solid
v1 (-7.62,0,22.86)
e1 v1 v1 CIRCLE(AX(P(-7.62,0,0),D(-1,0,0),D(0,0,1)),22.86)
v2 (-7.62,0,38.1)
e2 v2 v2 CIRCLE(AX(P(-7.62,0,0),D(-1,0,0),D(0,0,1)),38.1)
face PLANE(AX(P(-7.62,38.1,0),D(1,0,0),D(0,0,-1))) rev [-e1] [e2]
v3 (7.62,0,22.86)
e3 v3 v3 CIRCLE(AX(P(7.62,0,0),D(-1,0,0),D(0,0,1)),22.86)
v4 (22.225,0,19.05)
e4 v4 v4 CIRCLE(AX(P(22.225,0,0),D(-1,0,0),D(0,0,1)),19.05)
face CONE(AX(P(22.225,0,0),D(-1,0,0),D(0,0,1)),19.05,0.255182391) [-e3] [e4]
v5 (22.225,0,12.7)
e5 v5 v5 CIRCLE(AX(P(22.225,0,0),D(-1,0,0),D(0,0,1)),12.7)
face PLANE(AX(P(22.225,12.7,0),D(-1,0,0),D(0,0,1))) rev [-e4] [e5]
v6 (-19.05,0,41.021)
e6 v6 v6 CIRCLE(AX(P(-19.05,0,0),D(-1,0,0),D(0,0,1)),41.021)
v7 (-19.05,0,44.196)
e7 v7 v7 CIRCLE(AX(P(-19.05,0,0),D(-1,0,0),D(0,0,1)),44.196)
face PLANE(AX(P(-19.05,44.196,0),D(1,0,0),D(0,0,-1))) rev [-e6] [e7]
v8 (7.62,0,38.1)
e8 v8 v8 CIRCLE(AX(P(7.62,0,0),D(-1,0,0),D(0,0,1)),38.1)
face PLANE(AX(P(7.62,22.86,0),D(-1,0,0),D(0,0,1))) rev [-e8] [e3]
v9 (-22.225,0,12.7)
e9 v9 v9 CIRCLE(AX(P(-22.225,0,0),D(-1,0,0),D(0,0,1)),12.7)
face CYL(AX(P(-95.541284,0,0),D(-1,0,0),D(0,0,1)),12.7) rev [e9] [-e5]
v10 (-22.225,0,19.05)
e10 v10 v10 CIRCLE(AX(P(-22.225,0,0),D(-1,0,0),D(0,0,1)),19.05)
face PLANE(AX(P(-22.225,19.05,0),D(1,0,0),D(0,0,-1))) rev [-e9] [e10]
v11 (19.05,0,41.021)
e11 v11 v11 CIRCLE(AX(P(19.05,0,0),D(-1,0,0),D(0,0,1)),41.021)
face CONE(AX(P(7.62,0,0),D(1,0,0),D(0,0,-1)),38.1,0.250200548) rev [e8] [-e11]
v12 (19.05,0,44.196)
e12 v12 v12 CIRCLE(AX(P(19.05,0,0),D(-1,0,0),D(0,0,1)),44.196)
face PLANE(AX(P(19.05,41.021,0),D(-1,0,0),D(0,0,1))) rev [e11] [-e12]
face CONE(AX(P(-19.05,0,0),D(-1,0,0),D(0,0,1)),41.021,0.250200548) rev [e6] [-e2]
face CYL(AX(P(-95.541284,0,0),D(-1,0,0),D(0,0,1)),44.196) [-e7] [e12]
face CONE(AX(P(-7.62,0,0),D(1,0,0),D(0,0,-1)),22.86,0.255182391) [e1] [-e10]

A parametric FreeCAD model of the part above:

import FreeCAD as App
import Part
import Sketcher
Q = App.Units.Quantity

doc = App.newDocument("Part")
body = doc.addObject("PartDesign::Body", "Body")

sketch1 = body.newObject("Sketcher::SketchObject", "Sketch")
sketch1.AttachmentSupport = (doc.getObject("XY_Plane"), [""])
sketch1.MapMode = "FlatFace"
sketch1.addGeometry(Part.LineSegment(App.Vector(-22.2, 12.7, 0), App.Vector(22.2, 12.7, 0)), False)
sketch1.addGeometry(Part.LineSegment(App.Vector(22.2, 12.7, 0), App.Vector(22.2, 19.1, 0)), False)
sketch1.addGeometry(Part.LineSegment(App.Vector(22.2, 19.1, 0), App.Vector(7.6, 22.9, 0)), False)
sketch1.addGeometry(Part.LineSegment(App.Vector(7.6, 22.9, 0), App.Vector(7.6, 38.1, 0)), False)
sketch1.addGeometry(Part.LineSegment(App.Vector(7.6, 38.1, 0), App.Vector(19.1, 41, 0)), False)
sketch1.addGeometry(Part.LineSegment(App.Vector(19.1, 41, 0), App.Vector(19.1, 44.2, 0)), False)
sketch1.addGeometry(Part.LineSegment(App.Vector(19.1, 44.2, 0), App.Vector(-19.1, 44.2, 0)), False)
sketch1.addGeometry(Part.LineSegment(App.Vector(-19.1, 44.2, 0), App.Vector(-19.1, 41, 0)), False)
sketch1.addGeometry(Part.LineSegment(App.Vector(-19.1, 41, 0), App.Vector(-7.6, 38.1, 0)), False)
sketch1.addGeometry(Part.LineSegment(App.Vector(-7.6, 38.1, 0), App.Vector(-7.6, 22.9, 0)), False)
sketch1.addGeometry(Part.LineSegment(App.Vector(-7.6, 22.9, 0), App.Vector(-22.2, 19.1, 0)), False)
sketch1.addGeometry(Part.LineSegment(App.Vector(-22.2, 19.1, 0), App.Vector(-22.2, 12.7, 0)), False)
sketch1.addConstraint(Sketcher.Constraint("Coincident", 0, 2, 1, 1))
sketch1.addConstraint(Sketcher.Constraint("Coincident", 1, 2, 2, 1))
sketch1.addConstraint(Sketcher.Constraint("Coincident", 2, 2, 3, 1))
sketch1.addConstraint(Sketcher.Constraint("Coincident", 3, 2, 4, 1))
sketch1.addConstraint(Sketcher.Constraint("Coincident", 4, 2, 5, 1))
sketch1.addConstraint(Sketcher.Constraint("Coincident", 5, 2, 6, 1))
sketch1.addConstraint(Sketcher.Constraint("Coincident", 6, 2, 7, 1))
sketch1.addConstraint(Sketcher.Constraint("Coincident", 7, 2, 8, 1))
sketch1.addConstraint(Sketcher.Constraint("Coincident", 8, 2, 9, 1))
sketch1.addConstraint(Sketcher.Constraint("Coincident", 9, 2, 10, 1))
sketch1.addConstraint(Sketcher.Constraint("Coincident", 10, 2, 11, 1))
sketch1.addConstraint(Sketcher.Constraint("Coincident", 11, 2, 0, 1))
sketch1.addConstraint(Sketcher.Constraint("Horizontal", 0))
sketch1.addConstraint(Sketcher.Constraint("Vertical", 1))
sketch1.addConstraint(Sketcher.Constraint("Vertical", 3))
sketch1.addConstraint(Sketcher.Constraint("Vertical", 5))
sketch1.addConstraint(Sketcher.Constraint("Horizontal", 6))
sketch1.addConstraint(Sketcher.Constraint("Vertical", 7))
sketch1.addConstraint(Sketcher.Constraint("Vertical", 9))
sketch1.addConstraint(Sketcher.Constraint("Vertical", 11))
sketch1.addConstraint(Sketcher.Constraint("Symmetric", 4, 2, 7, 2, -2))
sketch1.addConstraint(Sketcher.Constraint("Symmetric", 3, 2, 8, 2, -2))
sketch1.addConstraint(Sketcher.Constraint("Symmetric", 1, 2, 10, 2, -2))
sketch1.addConstraint(Sketcher.Constraint("Horizontal", 2, 2, 9, 2))
sketch1.addConstraint(Sketcher.Constraint("DistanceX", 6, 2, 6, 1, Q("1.5 in")))
sketch1.addConstraint(Sketcher.Constraint("DistanceY", 3, 1, 3, 2, Q("0.6 in")))
sketch1.addConstraint(Sketcher.Constraint("DistanceY", 0, 2, 3, 2, Q("1 in")))
sketch1.addConstraint(Sketcher.Constraint("DistanceX", 0, 1, 0, 2, Q("1.75 in")))
sketch1.addConstraint(Sketcher.Constraint("DistanceY", 1, 1, 1, 2, Q("0.25 in")))
sketch1.addConstraint(Sketcher.Constraint("DistanceY", -1, 1, 0, 2, Q("0.5 in")))
sketch1.addConstraint(Sketcher.Constraint("DistanceX", -1, 1, 2, 2, Q("0.3 in")))
sketch1.addConstraint(Sketcher.Constraint("DistanceY", 5, 1, 5, 2, Q("0.125 in")))
sketch1.addConstraint(Sketcher.Constraint("DistanceY", -1, 1, 5, 2, Q("1.74 in")))
revolution = body.newObject("PartDesign::Revolution", "Revolution")
revolution.Profile = sketch1
revolution.ReferenceAxis = (sketch1, ["H_Axis"])
revolution.Angle = 360

doc.recompute()
